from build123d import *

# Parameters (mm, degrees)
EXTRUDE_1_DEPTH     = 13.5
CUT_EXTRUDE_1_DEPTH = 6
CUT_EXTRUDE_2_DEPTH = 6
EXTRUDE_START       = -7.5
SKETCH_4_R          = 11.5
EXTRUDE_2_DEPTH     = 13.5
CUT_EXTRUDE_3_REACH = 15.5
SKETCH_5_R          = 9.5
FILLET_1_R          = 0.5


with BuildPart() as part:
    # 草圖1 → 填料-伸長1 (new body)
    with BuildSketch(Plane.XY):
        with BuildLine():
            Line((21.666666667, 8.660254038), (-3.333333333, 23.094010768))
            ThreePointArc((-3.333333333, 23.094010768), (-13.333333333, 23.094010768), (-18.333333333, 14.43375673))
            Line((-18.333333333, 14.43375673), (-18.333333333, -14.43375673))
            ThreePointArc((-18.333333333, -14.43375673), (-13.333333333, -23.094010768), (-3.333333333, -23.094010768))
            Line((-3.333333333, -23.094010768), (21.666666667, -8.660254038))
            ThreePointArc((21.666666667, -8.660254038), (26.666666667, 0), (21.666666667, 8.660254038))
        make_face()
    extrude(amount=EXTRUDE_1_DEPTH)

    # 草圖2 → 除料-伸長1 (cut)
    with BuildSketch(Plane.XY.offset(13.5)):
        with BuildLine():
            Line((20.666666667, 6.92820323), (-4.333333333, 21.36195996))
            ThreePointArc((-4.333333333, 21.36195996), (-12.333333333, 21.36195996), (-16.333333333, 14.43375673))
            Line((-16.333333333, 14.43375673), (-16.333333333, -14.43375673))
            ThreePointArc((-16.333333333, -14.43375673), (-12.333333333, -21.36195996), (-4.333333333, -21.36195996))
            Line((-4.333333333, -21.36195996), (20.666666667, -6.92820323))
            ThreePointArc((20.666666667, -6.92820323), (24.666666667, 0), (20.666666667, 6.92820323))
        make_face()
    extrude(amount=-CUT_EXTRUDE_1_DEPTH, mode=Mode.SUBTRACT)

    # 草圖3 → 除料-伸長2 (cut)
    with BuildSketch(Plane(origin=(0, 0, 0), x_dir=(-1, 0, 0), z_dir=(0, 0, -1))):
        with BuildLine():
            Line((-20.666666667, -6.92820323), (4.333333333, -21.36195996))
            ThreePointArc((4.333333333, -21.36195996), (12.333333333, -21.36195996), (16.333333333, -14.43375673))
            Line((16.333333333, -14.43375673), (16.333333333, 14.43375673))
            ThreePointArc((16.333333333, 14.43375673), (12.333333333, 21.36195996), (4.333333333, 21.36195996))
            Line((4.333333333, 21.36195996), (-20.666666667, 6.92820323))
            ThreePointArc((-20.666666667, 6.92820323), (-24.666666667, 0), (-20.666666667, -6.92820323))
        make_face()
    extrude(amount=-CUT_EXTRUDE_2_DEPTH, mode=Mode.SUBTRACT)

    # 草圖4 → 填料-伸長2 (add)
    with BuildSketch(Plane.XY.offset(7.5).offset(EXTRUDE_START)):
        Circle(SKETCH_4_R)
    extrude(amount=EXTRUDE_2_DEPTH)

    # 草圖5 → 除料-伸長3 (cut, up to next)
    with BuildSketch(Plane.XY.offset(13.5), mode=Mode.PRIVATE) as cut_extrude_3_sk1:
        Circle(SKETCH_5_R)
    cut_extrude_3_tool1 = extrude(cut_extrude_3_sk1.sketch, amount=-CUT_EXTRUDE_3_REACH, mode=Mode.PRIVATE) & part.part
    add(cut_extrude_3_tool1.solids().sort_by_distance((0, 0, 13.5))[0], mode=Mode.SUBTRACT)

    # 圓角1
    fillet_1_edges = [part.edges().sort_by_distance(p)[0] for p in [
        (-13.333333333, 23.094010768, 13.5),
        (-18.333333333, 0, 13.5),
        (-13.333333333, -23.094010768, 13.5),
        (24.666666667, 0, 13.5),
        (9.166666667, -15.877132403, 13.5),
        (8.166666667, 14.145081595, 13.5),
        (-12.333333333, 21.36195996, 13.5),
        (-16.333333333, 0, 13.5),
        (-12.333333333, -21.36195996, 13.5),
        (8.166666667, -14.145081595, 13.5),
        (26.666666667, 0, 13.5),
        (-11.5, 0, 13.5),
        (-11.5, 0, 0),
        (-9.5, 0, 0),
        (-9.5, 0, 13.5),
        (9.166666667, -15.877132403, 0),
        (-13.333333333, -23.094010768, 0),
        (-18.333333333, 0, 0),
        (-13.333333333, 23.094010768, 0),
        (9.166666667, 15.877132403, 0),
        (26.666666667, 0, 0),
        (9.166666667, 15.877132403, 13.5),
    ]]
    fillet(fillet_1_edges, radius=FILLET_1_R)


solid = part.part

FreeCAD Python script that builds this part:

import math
import FreeCAD as App
import Part
import Sketcher
from FreeCAD import Vector
Q = App.Units.Quantity


def edges_at(feature, points):
    """Names of the edges that pass closest to the given points."""
    edges = feature.Shape.Edges
    near = lambda p: min(range(len(edges)), key=lambda i: edges[i].distToShape(Part.Vertex(*p))[0])
    return sorted({f"Edge{near(p) + 1}" for p in points})

doc = App.newDocument("Part")
body = doc.addObject("PartDesign::Body", "Body")

# Sketch on XY plane
sketch1 = body.newObject("Sketcher::SketchObject", "Sketch")
sketch1.AttachmentSupport = (doc.getObject("XY_Plane"), [""])
sketch1.MapMode = "FlatFace"
sketch1.addGeometry(Part.LineSegment(Vector(22, 9, 0), Vector(-3, 23, 0)), False)
sketch1.addGeometry(Part.ArcOfCircle(Part.Circle(Vector(-8, 14, 0), Vector(0, 0, 1), 10), math.radians(60), math.radians(180)), False)
sketch1.addGeometry(Part.LineSegment(Vector(-18, 14, 0), Vector(-18, -14, 0)), False)
sketch1.addGeometry(Part.ArcOfCircle(Part.Circle(Vector(-8, -14, 0), Vector(0, 0, 1), 10), math.radians(180), math.radians(300)), False)
sketch1.addGeometry(Part.LineSegment(Vector(-3, -23, 0), Vector(22, -9, 0)), False)
sketch1.addGeometry(Part.ArcOfCircle(Part.Circle(Vector(17, 0, 0), Vector(0, 0, 1), 10), math.radians(-60), math.radians(60)), False)
sketch1.addConstraint(Sketcher.Constraint("Tangent", 0, 2, 1, 1))
sketch1.addConstraint(Sketcher.Constraint("Tangent", 1, 2, 2, 1))
sketch1.addConstraint(Sketcher.Constraint("Tangent", 2, 2, 3, 1))
sketch1.addConstraint(Sketcher.Constraint("Tangent", 3, 2, 4, 1))
sketch1.addConstraint(Sketcher.Constraint("Tangent", 4, 2, 5, 1))
sketch1.addConstraint(Sketcher.Constraint("Tangent", 5, 2, 0, 1))
sketch1.addConstraint(Sketcher.Constraint("Vertical", 2))
sketch1.addConstraint(Sketcher.Constraint("Equal", 1, 3))
sketch1.addConstraint(Sketcher.Constraint("Equal", 3, 5))
sketch1.addConstraint(Sketcher.Constraint("Symmetric", 0, 2, 3, 2, -1))
sketch1.addConstraint(Sketcher.Constraint("Radius", 1, Q("10 mm")))
sketch1.addConstraint(Sketcher.Constraint("Angle", 0, Q("150 deg")))
sketch1.addConstraint(Sketcher.Constraint("DistanceX", 1, 3, 5, 3, Q("25 mm")))
sketch1.addConstraint(Sketcher.Constraint("DistanceX", 1, 3, -1, 1, Q("8.333333 mm")))
pad1 = body.newObject("PartDesign::Pad", "Pad")
pad1.Profile = sketch1
pad1.Length = 13.5

# Sketch on XY plane
sketch2 = body.newObject("Sketcher::SketchObject", "Sketch001")
sketch2.AttachmentSupport = (doc.getObject("XY_Plane"), [""])
sketch2.MapMode = "FlatFace"
sketch2.AttachmentOffset = App.Placement(Vector(0, 0, 13.5), App.Rotation())
sketch2.addGeometry(Part.LineSegment(Vector(21, 7, 0), Vector(-4, 21, 0)), False)
sketch2.addGeometry(Part.ArcOfCircle(Part.Circle(Vector(-8, 14, 0), Vector(0, 0, 1), 8), math.radians(60), math.radians(180)), False)
sketch2.addGeometry(Part.LineSegment(Vector(-16, 14, 0), Vector(-16, -14, 0)), False)
sketch2.addGeometry(Part.ArcOfCircle(Part.Circle(Vector(-8, -14, 0), Vector(0, 0, 1), 8), math.radians(180), math.radians(300)), False)
sketch2.addGeometry(Part.LineSegment(Vector(-4, -21, 0), Vector(21, -7, 0)), False)
sketch2.addGeometry(Part.ArcOfCircle(Part.Circle(Vector(17, 0, 0), Vector(0, 0, 1), 8), math.radians(-60), math.radians(60)), False)
sketch2.addConstraint(Sketcher.Constraint("Tangent", 0, 2, 1, 1))
sketch2.addConstraint(Sketcher.Constraint("Tangent", 1, 2, 2, 1))
sketch2.addConstraint(Sketcher.Constraint("Tangent", 2, 2, 3, 1))
sketch2.addConstraint(Sketcher.Constraint("Tangent", 3, 2, 4, 1))
sketch2.addConstraint(Sketcher.Constraint("Tangent", 4, 2, 5, 1))
sketch2.addConstraint(Sketcher.Constraint("Tangent", 5, 2, 0, 1))
sketch2.addConstraint(Sketcher.Constraint("Vertical", 2))
sketch2.addConstraint(Sketcher.Constraint("Equal", 1, 3))
sketch2.addConstraint(Sketcher.Constraint("Equal", 3, 5))
sketch2.addConstraint(Sketcher.Constraint("Symmetric", 0, 2, 3, 2, -1))
sketch2.addConstraint(Sketcher.Constraint("Radius", 1, Q("8 mm")))
sketch2.addConstraint(Sketcher.Constraint("Angle", 0, Q("150 deg")))
sketch2.addConstraint(Sketcher.Constraint("DistanceX", 1, 3, 5, 3, Q("25 mm")))
sketch2.addConstraint(Sketcher.Constraint("DistanceX", 1, 3, -1, 1, Q("8.333333 mm")))
pocket1 = body.newObject("PartDesign::Pocket", "Pocket")
pocket1.Profile = sketch2
pocket1.Length = 6

# Sketch on XY plane
sketch3 = body.newObject("Sketcher::SketchObject", "Sketch002")
sketch3.AttachmentSupport = (doc.getObject("XY_Plane"), [""])
sketch3.MapMode = "FlatFace"
sketch3.addGeometry(Part.LineSegment(Vector(21, -7, 0), Vector(-4, -21, 0)), False)
sketch3.addGeometry(Part.ArcOfCircle(Part.Circle(Vector(-8, -14, 0), Vector(0, 0, 1), 8), math.radians(180), math.radians(300)), False)
sketch3.addGeometry(Part.LineSegment(Vector(-16, -14, 0), Vector(-16, 14, 0)), False)
sketch3.addGeometry(Part.ArcOfCircle(Part.Circle(Vector(-8, 14, 0), Vector(0, 0, 1), 8), math.radians(60), math.radians(180)), False)
sketch3.addGeometry(Part.LineSegment(Vector(-4, 21, 0), Vector(21, 7, 0)), False)
sketch3.addGeometry(Part.ArcOfCircle(Part.Circle(Vector(17, 0, 0), Vector(0, 0, 1), 8), math.radians(-60), math.radians(60)), False)
sketch3.addConstraint(Sketcher.Constraint("Tangent", 0, 2, 1, 2))
sketch3.addConstraint(Sketcher.Constraint("Tangent", 1, 1, 2, 1))
sketch3.addConstraint(Sketcher.Constraint("Tangent", 2, 2, 3, 2))
sketch3.addConstraint(Sketcher.Constraint("Tangent", 3, 1, 4, 1))
sketch3.addConstraint(Sketcher.Constraint("Tangent", 4, 2, 5, 2))
sketch3.addConstraint(Sketcher.Constraint("Tangent", 5, 1, 0, 1))
sketch3.addConstraint(Sketcher.Constraint("Vertical", 2))
sketch3.addConstraint(Sketcher.Constraint("Equal", 1, 3))
sketch3.addConstraint(Sketcher.Constraint("Equal", 3, 5))
sketch3.addConstraint(Sketcher.Constraint("Symmetric", 0, 2, 3, 1, -1))
sketch3.addConstraint(Sketcher.Constraint("Radius", 1, Q("8 mm")))
sketch3.addConstraint(Sketcher.Constraint("Angle", 0, Q("-150 deg")))
sketch3.addConstraint(Sketcher.Constraint("DistanceX", 1, 3, 5, 3, Q("25 mm")))
sketch3.addConstraint(Sketcher.Constraint("DistanceX", 1, 3, -1, 1, Q("8.333333 mm")))
pocket2 = body.newObject("PartDesign::Pocket", "Pocket001")
pocket2.Profile = sketch3
pocket2.Length = 6
pocket2.Reversed = True

# Sketch on XY plane
sketch4 = body.newObject("Sketcher::SketchObject", "Sketch003")
sketch4.AttachmentSupport = (doc.getObject("XY_Plane"), [""])
sketch4.MapMode = "FlatFace"
sketch4.addGeometry(Part.Circle(Vector(0, 0, 0), Vector(0, 0, 1), 12), False)
sketch4.addConstraint(Sketcher.Constraint("Coincident", 0, 3, -1, 1))
sketch4.addConstraint(Sketcher.Constraint("Diameter", 0, Q("23 mm")))
pad2 = body.newObject("PartDesign::Pad", "Pad001")
pad2.Profile = sketch4
pad2.Length = 13.5

# Sketch on XY plane
sketch5 = body.newObject("Sketcher::SketchObject", "Sketch004")
sketch5.AttachmentSupport = (doc.getObject("XY_Plane"), [""])
sketch5.MapMode = "FlatFace"
sketch5.AttachmentOffset = App.Placement(Vector(0, 0, 13.5), App.Rotation())
sketch5.addGeometry(Part.Circle(Vector(0, 0, 0), Vector(0, 0, 1), 10), False)
sketch5.addConstraint(Sketcher.Constraint("Coincident", 0, 3, -1, 1))
sketch5.addConstraint(Sketcher.Constraint("Diameter", 0, Q("19 mm")))
pocket3 = body.newObject("PartDesign::Pocket", "Pocket002")
pocket3.Profile = sketch5
pocket3.Type = "UpToFirst"
doc.recompute()

fillet = body.newObject("PartDesign::Fillet", "Fillet")
fillet.Base = (pocket3, edges_at(pocket3, [
    (-13.333, 23.094, 13.5),
    (-18.333, 0, 13.5),
    (-13.333, -23.094, 13.5),
    (24.667, 0, 13.5),
    (9.167, -15.877, 13.5),
    (8.167, 14.145, 13.5),
    (-12.333, 21.362, 13.5),
    (-16.333, 0, 13.5),
    (-12.333, -21.362, 13.5),
    (8.167, -14.145, 13.5),
    (26.667, 0, 13.5),
    (-11.5, 0, 13.5),
    (-11.5, 0, 0),
    (-9.5, 0, 0),
    (-9.5, 0, 13.5),
    (9.167, -15.877, 0),
    (-13.333, -23.094, 0),
    (-18.333, 0, 0),
    (-13.333, 23.094, 0),
    (9.167, 15.877, 0),
    (26.667, 0, 0),
    (9.167, 15.877, 13.5),
]))
fillet.Radius = 0.5

doc.recompute()
